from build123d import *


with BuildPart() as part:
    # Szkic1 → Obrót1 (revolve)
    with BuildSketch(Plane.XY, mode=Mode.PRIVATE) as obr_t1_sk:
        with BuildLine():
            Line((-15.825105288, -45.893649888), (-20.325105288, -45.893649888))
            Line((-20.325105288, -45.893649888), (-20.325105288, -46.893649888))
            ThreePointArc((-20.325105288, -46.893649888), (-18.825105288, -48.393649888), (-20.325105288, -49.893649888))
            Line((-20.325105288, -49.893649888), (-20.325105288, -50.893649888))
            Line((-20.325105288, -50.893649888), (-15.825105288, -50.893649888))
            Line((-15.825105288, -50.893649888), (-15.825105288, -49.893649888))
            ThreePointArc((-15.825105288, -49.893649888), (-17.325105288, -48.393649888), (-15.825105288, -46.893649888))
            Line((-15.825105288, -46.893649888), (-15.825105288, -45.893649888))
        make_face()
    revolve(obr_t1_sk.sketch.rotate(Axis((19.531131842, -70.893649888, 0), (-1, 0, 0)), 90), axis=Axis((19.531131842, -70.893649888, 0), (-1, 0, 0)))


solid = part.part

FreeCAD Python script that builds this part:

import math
import FreeCAD as App
import Part
import Sketcher

doc = App.newDocument("Part")
body = doc.addObject("PartDesign::Body", "Body")

# Sketch on XY plane
sketch1 = body.newObject("Sketcher::SketchObject", "Sketch")
sketch1.AttachmentSupport = (doc.getObject("XY_Plane"), [""])
sketch1.MapMode = "FlatFace"
sketch1.addGeometry([
    Part.LineSegment(App.Vector(-15.8, -45.9, 0), App.Vector(-20.3, -45.9, 0)),  # 0
    Part.LineSegment(App.Vector(-20.3, -45.9, 0), App.Vector(-20.3, -46.9, 0)),  # 1
    Part.ArcOfCircle(Part.Circle(App.Vector(-20.3, -48.4, 0), App.Vector(0, 0, 1), 1.5), math.radians(-90), math.radians(90)),  # 2
    Part.LineSegment(App.Vector(-20.3, -49.9, 0), App.Vector(-20.3, -50.9, 0)),  # 3
    Part.LineSegment(App.Vector(-20.3, -50.9, 0), App.Vector(-15.8, -50.9, 0)),  # 4
    Part.LineSegment(App.Vector(-15.8, -50.9, 0), App.Vector(-15.8, -49.9, 0)),  # 5
    Part.ArcOfCircle(Part.Circle(App.Vector(-15.8, -48.4, 0), App.Vector(0, 0, 1), 1.5), math.radians(90), math.radians(270)),  # 6
    Part.LineSegment(App.Vector(-15.8, -46.9, 0), App.Vector(-15.8, -45.9, 0)),  # 7
], False)
sketch1.addGeometry(Part.LineSegment(App.Vector(-15.8, -70.9, 0), App.Vector(-20.3, -70.9, 0)), True)  # axis
sketch1.addConstraint([
    Sketcher.Constraint("Coincident", 0, 2, 1, 1),
    Sketcher.Constraint("Coincident", 1, 2, 2, 2),
    Sketcher.Constraint("Coincident", 2, 1, 3, 1),
    Sketcher.Constraint("Coincident", 3, 2, 4, 1),
    Sketcher.Constraint("Coincident", 4, 2, 5, 1),
    Sketcher.Constraint("Coincident", 5, 2, 6, 2),
    Sketcher.Constraint("Coincident", 6, 1, 7, 1),
    Sketcher.Constraint("Coincident", 7, 2, 0, 1),
    Sketcher.Constraint("Horizontal", 0),
    Sketcher.Constraint("Vertical", 1),
    Sketcher.Constraint("Vertical", 3),
    Sketcher.Constraint("Horizontal", 4),
    Sketcher.Constraint("Vertical", 5),
    Sketcher.Constraint("Vertical", 7),
    Sketcher.Constraint("Horizontal", 8),
    Sketcher.Constraint("Equal", 2, 6),
    Sketcher.Constraint("Horizontal", 2, 3, 6, 3),
    Sketcher.Constraint("Vertical", 2, 3, 0, 2),
    Sketcher.Constraint("Vertical", 1, 2, 2, 1),
    Sketcher.Constraint("Vertical", 6, 3, 4, 2),
    Sketcher.Constraint("Vertical", 5, 2, 6, 1),
    Sketcher.Constraint("Vertical", 7, 2, 8, 1),
    Sketcher.Constraint("Vertical", 3, 2, 8, 2),
    Sketcher.Constraint("Equal", 1, 3),
    Sketcher.Constraint("Radius", 2, 1.5),
    Sketcher.Constraint("DistanceY", 1, 2, 1, 1, 1.0),
    Sketcher.Constraint("DistanceX", 0, 2, 0, 1, 4.5),
    Sketcher.Constraint("DistanceY", 8, 1, 4, 2, 20.0),
    Sketcher.Constraint("DistanceY", 2, 3, -1, 1, 48.39365),
    Sketcher.Constraint("DistanceX", 2, 3, -1, 1, 20.325105),
])
revolution = body.newObject("PartDesign::Revolution", "Revolution")
revolution.Profile = sketch1
revolution.ReferenceAxis = (sketch1, ["Axis0"])
revolution.Angle = 360

doc.recompute()
